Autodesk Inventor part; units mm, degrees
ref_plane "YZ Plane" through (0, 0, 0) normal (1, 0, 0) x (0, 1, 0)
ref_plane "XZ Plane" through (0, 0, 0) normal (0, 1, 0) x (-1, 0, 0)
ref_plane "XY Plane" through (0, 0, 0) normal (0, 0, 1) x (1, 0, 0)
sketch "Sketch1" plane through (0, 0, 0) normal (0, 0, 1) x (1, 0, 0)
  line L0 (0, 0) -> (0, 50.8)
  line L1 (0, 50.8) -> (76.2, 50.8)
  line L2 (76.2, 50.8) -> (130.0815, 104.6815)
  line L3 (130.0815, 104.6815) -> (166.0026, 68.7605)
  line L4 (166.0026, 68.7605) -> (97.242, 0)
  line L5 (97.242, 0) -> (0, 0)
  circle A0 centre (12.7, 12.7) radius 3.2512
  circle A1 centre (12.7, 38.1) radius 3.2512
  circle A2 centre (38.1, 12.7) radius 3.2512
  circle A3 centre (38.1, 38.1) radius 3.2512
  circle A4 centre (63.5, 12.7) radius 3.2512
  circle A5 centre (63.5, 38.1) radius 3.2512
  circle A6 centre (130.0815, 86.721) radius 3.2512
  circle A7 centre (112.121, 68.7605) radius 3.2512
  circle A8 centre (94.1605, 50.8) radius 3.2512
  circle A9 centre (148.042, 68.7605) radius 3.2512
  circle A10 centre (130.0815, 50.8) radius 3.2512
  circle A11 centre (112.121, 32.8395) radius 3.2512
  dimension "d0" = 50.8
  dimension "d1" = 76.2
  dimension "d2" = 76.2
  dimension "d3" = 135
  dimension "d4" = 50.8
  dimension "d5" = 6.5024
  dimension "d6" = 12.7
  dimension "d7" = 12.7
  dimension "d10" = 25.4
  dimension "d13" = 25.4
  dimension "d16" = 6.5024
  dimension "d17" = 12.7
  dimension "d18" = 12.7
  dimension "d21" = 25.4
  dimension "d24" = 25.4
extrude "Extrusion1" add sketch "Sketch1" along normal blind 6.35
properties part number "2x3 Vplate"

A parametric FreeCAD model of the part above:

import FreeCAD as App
import Part
import Sketcher

V = App.Vector
Q = App.Units.Quantity

doc = App.newDocument("Part")
body = doc.addObject("PartDesign::Body", "Body")

# Sketch on XY plane
sketch1 = body.newObject("Sketcher::SketchObject", "Sketch")
sketch1.AttachmentSupport = (doc.getObject("XY_Plane"), [""])
sketch1.MapMode = "FlatFace"
sketch1.addGeometry(Part.LineSegment(V(0, 50.8, 0), V(0, 0, 0)), False)
sketch1.addGeometry(Part.LineSegment(V(0, 0, 0), V(97.2, 0, 0)), False)
sketch1.addGeometry(Part.LineSegment(V(97.2, 0, 0), V(166, 68.8, 0)), False)
sketch1.addGeometry(Part.LineSegment(V(166, 68.8, 0), V(130.1, 104.7, 0)), False)
sketch1.addGeometry(Part.LineSegment(V(130.1, 104.7, 0), V(76.2, 50.8, 0)), False)
sketch1.addGeometry(Part.LineSegment(V(76.2, 50.8, 0), V(0, 50.8, 0)), False)
sketch1.addGeometry(Part.Circle(V(12.7, 12.7, 0), V(0, 0, 1), 3.3), False)
sketch1.addGeometry(Part.Circle(V(38.1, 12.7, 0), V(0, 0, 1), 3.3), False)
sketch1.addGeometry(Part.Circle(V(63.5, 12.7, 0), V(0, 0, 1), 3.3), False)
sketch1.addGeometry(Part.Circle(V(12.7, 38.1, 0), V(0, 0, 1), 3.3), False)
sketch1.addGeometry(Part.Circle(V(38.1, 38.1, 0), V(0, 0, 1), 3.3), False)
sketch1.addGeometry(Part.Circle(V(63.5, 38.1, 0), V(0, 0, 1), 3.3), False)
sketch1.addGeometry(Part.Circle(V(112.1, 32.8, 0), V(0, 0, 1), 3.3), False)
sketch1.addGeometry(Part.Circle(V(94.2, 50.8, 0), V(0, 0, 1), 3.3), False)
sketch1.addGeometry(Part.Circle(V(130.1, 50.8, 0), V(0, 0, 1), 3.3), False)
sketch1.addGeometry(Part.Circle(V(112.1, 68.8, 0), V(0, 0, 1), 3.3), False)
sketch1.addGeometry(Part.Circle(V(148, 68.8, 0), V(0, 0, 1), 3.3), False)
sketch1.addGeometry(Part.Circle(V(130.1, 86.7, 0), V(0, 0, 1), 3.3), False)
sketch1.addConstraint(Sketcher.Constraint("Coincident", 0, 2, 1, 1))
sketch1.addConstraint(Sketcher.Constraint("Coincident", 1, 2, 2, 1))
sketch1.addConstraint(Sketcher.Constraint("Coincident", 2, 2, 3, 1))
sketch1.addConstraint(Sketcher.Constraint("Coincident", 3, 2, 4, 1))
sketch1.addConstraint(Sketcher.Constraint("Coincident", 4, 2, 5, 1))
sketch1.addConstraint(Sketcher.Constraint("Coincident", 5, 2, 0, 1))
sketch1.addConstraint(Sketcher.Constraint("Vertical", 0))
sketch1.addConstraint(Sketcher.Constraint("Horizontal", 1))
sketch1.addConstraint(Sketcher.Constraint("Horizontal", 5))
sketch1.addConstraint(Sketcher.Constraint("Coincident", 0, 2, -1, 1))
sketch1.addConstraint(Sketcher.Constraint("Equal", 6, 7))
sketch1.addConstraint(Sketcher.Constraint("Equal", 7, 8))
sketch1.addConstraint(Sketcher.Constraint("Equal", 8, 9))
sketch1.addConstraint(Sketcher.Constraint("Equal", 9, 10))
sketch1.addConstraint(Sketcher.Constraint("Equal", 10, 11))
sketch1.addConstraint(Sketcher.Constraint("Equal", 11, 12))
sketch1.addConstraint(Sketcher.Constraint("Equal", 12, 13))
sketch1.addConstraint(Sketcher.Constraint("Equal", 13, 14))
sketch1.addConstraint(Sketcher.Constraint("Equal", 14, 15))
sketch1.addConstraint(Sketcher.Constraint("Equal", 15, 16))
sketch1.addConstraint(Sketcher.Constraint("Equal", 16, 17))
sketch1.addConstraint(Sketcher.Constraint("Perpendicular", 2, 3))
sketch1.addConstraint(Sketcher.Constraint("Perpendicular", 3, 4))
sketch1.addConstraint(Sketcher.Constraint("Horizontal", 6, 3, 7, 3))
sketch1.addConstraint(Sketcher.Constraint("Horizontal", 7, 3, 8, 3))
sketch1.addConstraint(Sketcher.Constraint("Horizontal", 9, 3, 10, 3))
sketch1.addConstraint(Sketcher.Constraint("Horizontal", 10, 3, 11, 3))
sketch1.addConstraint(Sketcher.Constraint("Horizontal", 13, 3, 14, 3))
sketch1.addConstraint(Sketcher.Constraint("Horizontal", 15, 3, 16, 3))
sketch1.addConstraint(Sketcher.Constraint("Horizontal", 16, 3, 2, 2))
sketch1.addConstraint(Sketcher.Constraint("Horizontal", 14, 3, 4, 2))
sketch1.addConstraint(Sketcher.Constraint("Vertical", 6, 3, 9, 3))
sketch1.addConstraint(Sketcher.Constraint("Vertical", 7, 3, 10, 3))
sketch1.addConstraint(Sketcher.Constraint("Vertical", 8, 3, 11, 3))
sketch1.addConstraint(Sketcher.Constraint("Vertical", 12, 3, 15, 3))
sketch1.addConstraint(Sketcher.Constraint("Vertical", 14, 3, 17, 3))
sketch1.addConstraint(Sketcher.Constraint("Vertical", 17, 3, 3, 2))
sketch1.addConstraint(Sketcher.Constraint("DistanceX", 5, 2, 5, 1, Q("3 in")))
sketch1.addConstraint(Sketcher.Constraint("DistanceY", 0, 2, 0, 1, Q("2 in")))
sketch1.addConstraint(Sketcher.Constraint("Distance", 3, Q("2 in")))
sketch1.addConstraint(Sketcher.Constraint("Distance", 4, Q("3 in")))
sketch1.addConstraint(Sketcher.Constraint("Diameter", 6, Q("0.256 in")))
sketch1.addConstraint(Sketcher.Constraint("Angle", 3, Q("135 deg")))
sketch1.addConstraint(Sketcher.Constraint("DistanceX", 6, 3, 7, 3, Q("1 in")))
sketch1.addConstraint(Sketcher.Constraint("DistanceX", 7, 3, 8, 3, Q("1 in")))
sketch1.addConstraint(Sketcher.Constraint("DistanceY", 6, 3, 9, 3, Q("1 in")))
sketch1.addConstraint(Sketcher.Constraint("DistanceX", -1, 1, 6, 3, Q("0.5 in")))
sketch1.addConstraint(Sketcher.Constraint("DistanceY", -1, 1, 6, 3, Q("0.5 in")))
sketch1.addConstraint(Sketcher.Constraint("DistanceY", -1, 1, 12, 3, Q("1.2929 in")))
sketch1.addConstraint(Sketcher.Constraint("DistanceX", -1, 1, 13, 3, Q("3.7071 in")))
sketch1.addConstraint(Sketcher.Constraint("DistanceX", 13, 3, 12, 3, Q("0.7071 in")))
sketch1.addConstraint(Sketcher.Constraint("DistanceX", 14, 3, 16, 3, Q("0.7071 in")))
sketch1.addConstraint(Sketcher.Constraint("DistanceY", 16, 3, 17, 3, Q("0.7071 in")))
pad1 = body.newObject("PartDesign::Pad", "Pad")
pad1.Profile = sketch1
pad1.Length = Q("0.25 in")

doc.recompute()
